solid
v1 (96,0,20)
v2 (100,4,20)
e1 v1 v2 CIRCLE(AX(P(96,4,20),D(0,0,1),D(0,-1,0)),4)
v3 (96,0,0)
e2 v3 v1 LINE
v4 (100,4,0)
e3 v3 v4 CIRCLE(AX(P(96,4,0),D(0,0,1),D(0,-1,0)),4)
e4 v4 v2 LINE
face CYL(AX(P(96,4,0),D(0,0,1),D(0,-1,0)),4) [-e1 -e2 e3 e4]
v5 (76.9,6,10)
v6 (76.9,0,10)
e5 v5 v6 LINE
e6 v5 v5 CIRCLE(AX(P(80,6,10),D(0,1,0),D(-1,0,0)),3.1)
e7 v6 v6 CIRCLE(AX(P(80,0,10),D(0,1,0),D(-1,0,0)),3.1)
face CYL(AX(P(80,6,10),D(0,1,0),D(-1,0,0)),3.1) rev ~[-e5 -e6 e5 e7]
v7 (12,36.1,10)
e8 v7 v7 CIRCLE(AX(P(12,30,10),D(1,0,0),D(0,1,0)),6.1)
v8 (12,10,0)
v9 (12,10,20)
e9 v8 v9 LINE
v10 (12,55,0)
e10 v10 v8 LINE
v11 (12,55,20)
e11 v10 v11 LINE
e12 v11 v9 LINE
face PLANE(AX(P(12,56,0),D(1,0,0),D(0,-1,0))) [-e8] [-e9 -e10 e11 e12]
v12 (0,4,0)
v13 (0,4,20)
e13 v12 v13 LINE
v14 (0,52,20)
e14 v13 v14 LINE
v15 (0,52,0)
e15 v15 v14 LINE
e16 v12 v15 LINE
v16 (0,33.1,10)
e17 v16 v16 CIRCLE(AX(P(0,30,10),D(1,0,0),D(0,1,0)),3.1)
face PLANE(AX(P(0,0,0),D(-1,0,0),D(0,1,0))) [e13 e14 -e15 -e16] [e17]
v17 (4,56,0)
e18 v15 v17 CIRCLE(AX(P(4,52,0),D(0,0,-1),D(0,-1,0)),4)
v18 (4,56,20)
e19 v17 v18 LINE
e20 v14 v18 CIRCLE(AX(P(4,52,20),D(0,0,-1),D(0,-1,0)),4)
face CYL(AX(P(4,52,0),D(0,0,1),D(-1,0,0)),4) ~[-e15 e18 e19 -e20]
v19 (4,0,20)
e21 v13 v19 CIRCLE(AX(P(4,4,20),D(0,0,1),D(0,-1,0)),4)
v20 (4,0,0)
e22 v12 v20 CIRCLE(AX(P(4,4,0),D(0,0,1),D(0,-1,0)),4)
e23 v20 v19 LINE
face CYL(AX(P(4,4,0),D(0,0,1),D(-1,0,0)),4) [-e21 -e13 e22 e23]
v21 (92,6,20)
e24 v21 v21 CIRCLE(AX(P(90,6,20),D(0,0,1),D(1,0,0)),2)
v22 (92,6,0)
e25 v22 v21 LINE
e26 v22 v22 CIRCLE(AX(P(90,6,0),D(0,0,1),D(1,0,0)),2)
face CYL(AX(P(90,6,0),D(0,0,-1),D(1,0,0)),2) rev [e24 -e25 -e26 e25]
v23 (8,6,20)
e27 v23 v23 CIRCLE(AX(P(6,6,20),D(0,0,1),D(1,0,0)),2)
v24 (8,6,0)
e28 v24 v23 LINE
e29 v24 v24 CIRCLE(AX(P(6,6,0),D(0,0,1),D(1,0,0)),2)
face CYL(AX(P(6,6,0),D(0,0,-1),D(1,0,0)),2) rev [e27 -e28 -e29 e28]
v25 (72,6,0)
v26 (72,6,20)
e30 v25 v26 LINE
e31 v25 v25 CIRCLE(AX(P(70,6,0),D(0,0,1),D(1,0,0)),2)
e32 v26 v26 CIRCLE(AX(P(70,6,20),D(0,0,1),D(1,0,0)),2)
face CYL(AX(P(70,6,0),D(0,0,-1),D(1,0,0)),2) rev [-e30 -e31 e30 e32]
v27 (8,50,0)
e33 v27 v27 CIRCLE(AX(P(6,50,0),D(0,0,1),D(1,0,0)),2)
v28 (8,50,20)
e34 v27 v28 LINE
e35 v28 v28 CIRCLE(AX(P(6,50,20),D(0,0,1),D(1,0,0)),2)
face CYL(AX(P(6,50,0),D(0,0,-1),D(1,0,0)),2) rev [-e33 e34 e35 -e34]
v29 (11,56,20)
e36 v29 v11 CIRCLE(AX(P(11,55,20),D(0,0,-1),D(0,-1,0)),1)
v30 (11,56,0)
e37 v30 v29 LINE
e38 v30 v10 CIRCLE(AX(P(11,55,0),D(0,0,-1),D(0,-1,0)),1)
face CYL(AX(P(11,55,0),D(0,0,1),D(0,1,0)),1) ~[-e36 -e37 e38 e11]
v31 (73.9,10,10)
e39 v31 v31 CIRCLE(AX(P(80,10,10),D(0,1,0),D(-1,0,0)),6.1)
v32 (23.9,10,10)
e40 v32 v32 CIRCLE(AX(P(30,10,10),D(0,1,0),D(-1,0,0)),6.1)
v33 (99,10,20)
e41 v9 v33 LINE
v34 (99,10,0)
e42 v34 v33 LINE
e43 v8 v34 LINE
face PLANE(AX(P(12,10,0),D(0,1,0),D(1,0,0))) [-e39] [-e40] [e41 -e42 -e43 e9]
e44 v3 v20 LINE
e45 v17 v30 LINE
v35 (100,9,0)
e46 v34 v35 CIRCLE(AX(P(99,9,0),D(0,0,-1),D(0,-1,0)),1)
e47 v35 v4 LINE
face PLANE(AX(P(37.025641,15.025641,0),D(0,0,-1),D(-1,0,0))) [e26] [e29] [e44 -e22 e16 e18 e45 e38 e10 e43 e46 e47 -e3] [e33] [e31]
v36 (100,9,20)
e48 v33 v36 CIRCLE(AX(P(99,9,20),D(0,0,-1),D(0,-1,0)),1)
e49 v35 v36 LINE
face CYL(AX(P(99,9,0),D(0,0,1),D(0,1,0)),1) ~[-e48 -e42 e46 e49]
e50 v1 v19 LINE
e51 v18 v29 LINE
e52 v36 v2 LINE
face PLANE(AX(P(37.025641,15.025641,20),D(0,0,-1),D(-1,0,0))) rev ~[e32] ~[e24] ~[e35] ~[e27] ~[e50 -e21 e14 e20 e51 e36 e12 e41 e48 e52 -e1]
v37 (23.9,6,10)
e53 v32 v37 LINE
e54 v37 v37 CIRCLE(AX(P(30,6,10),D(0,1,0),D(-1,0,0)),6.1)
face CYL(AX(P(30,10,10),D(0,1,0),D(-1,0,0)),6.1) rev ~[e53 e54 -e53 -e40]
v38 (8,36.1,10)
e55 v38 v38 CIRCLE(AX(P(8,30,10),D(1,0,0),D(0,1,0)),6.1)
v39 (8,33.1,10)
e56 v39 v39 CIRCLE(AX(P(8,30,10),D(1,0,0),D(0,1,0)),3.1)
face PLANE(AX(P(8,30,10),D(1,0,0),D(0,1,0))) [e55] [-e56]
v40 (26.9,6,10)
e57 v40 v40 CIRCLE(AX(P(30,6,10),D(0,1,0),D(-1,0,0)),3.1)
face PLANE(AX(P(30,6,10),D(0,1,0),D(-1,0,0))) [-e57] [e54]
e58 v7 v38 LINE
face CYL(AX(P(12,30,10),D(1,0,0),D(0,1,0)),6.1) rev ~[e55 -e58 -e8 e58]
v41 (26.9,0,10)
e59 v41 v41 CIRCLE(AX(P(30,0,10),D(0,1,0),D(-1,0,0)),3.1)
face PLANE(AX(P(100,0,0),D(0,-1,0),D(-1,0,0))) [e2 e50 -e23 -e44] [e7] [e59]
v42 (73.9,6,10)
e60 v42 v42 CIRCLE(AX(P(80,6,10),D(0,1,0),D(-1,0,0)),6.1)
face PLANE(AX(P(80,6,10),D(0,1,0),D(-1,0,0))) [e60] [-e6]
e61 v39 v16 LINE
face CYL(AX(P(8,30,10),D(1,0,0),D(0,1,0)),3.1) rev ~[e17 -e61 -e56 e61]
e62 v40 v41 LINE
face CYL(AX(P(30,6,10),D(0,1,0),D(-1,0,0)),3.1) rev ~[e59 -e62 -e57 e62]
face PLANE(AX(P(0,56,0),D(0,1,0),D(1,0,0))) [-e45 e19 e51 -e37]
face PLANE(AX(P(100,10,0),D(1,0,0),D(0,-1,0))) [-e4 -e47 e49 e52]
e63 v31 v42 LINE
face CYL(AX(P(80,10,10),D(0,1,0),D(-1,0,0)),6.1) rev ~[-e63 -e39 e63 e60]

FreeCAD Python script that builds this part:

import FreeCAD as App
import Part
import Sketcher

V = App.Vector


def edges_at(feature, points):
    """Names of the edges that pass closest to the given points."""
    edges = feature.Shape.Edges
    near = lambda p: min(range(len(edges)), key=lambda i: edges[i].distToShape(Part.Vertex(*p))[0])
    return sorted({f"Edge{near(p) + 1}" for p in points})


def add_polygon(sketch, points):
    """Adds a closed chain of lines whose ends are joined by coincident constraints."""
    first, n = sketch.GeometryCount, len(points)
    for a, b in zip(points, points[1:] + points[:1]):
        sketch.addGeometry(Part.LineSegment(App.Vector(*a, 0), App.Vector(*b, 0)), False)
    for i in range(n):
        sketch.addConstraint(Sketcher.Constraint("Coincident", first + i, 2, first + (i + 1) % n, 1))

doc = App.newDocument("Part")
body = doc.addObject("PartDesign::Body", "Body")

# Sketch on XY plane
sketch1 = body.newObject("Sketcher::SketchObject", "Sketch")
sketch1.AttachmentSupport = (doc.getObject("XY_Plane"), [""])
sketch1.MapMode = "FlatFace"
add_polygon(sketch1, [(12, 56), (0, 56), (0, 0), (100, 0), (100, 10), (12, 10)])  # lines 0-5
sketch1.addGeometry(Part.Circle(V(90, 6, 0), V(0, 0, 1), 2), False)  # 6
sketch1.addGeometry(Part.Circle(V(70, 6, 0), V(0, 0, 1), 2), False)  # 7
sketch1.addGeometry(Part.Circle(V(6, 6, 0), V(0, 0, 1), 2), False)  # 8
sketch1.addGeometry(Part.Circle(V(6, 50, 0), V(0, 0, 1), 2), False)  # 9
sketch1.addConstraint(Sketcher.Constraint("Horizontal", 0))
sketch1.addConstraint(Sketcher.Constraint("Vertical", 1))
sketch1.addConstraint(Sketcher.Constraint("Horizontal", 2))
sketch1.addConstraint(Sketcher.Constraint("Vertical", 3))
sketch1.addConstraint(Sketcher.Constraint("Horizontal", 4))
sketch1.addConstraint(Sketcher.Constraint("Vertical", 5))
sketch1.addConstraint(Sketcher.Constraint("Coincident", 1, 2, -1, 1))
sketch1.addConstraint(Sketcher.Constraint("Equal", 6, 7))
sketch1.addConstraint(Sketcher.Constraint("Equal", 7, 8))
sketch1.addConstraint(Sketcher.Constraint("Equal", 8, 9))
sketch1.addConstraint(Sketcher.Constraint("Horizontal", 6, 3, 7, 3))
sketch1.addConstraint(Sketcher.Constraint("Horizontal", 7, 3, 8, 3))
sketch1.addConstraint(Sketcher.Constraint("Vertical", 8, 3, 9, 3))
sketch1.addConstraint(Sketcher.Constraint("Diameter", 6, 4.0))
sketch1.addConstraint(Sketcher.Constraint("DistanceX", 0, 2, 0, 1, 12.0))
sketch1.addConstraint(Sketcher.Constraint("DistanceX", 2, 1, 2, 2, 100.0))
sketch1.addConstraint(Sketcher.Constraint("DistanceY", 1, 2, 1, 1, 56.0))
sketch1.addConstraint(Sketcher.Constraint("DistanceY", 3, 1, 3, 2, 10.0))
sketch1.addConstraint(Sketcher.Constraint("DistanceX", -1, 1, 6, 3, 90.0))
sketch1.addConstraint(Sketcher.Constraint("DistanceY", -1, 1, 6, 3, 6.0))
sketch1.addConstraint(Sketcher.Constraint("DistanceX", -1, 1, 7, 3, 70.0))
sketch1.addConstraint(Sketcher.Constraint("DistanceX", -1, 1, 8, 3, 6.0))
sketch1.addConstraint(Sketcher.Constraint("DistanceY", -1, 1, 9, 3, 50.0))
pad1 = body.newObject("PartDesign::Pad", "Pad")
pad1.Profile = sketch1
pad1.Length = 20

# Sketch on XZ plane
sketch2 = body.newObject("Sketcher::SketchObject", "Sketch001")
sketch2.AttachmentSupport = (doc.getObject("XZ_Plane"), [""])
sketch2.MapMode = "FlatFace"
sketch2.AttachmentOffset = App.Placement(V(0, 0, -10), App.Rotation())
sketch2.addGeometry(Part.Circle(V(30, 10, 0), V(0, 0, 1), 6), False)
sketch2.addGeometry(Part.Circle(V(80, 10, 0), V(0, 0, 1), 6), False)
sketch2.addConstraint(Sketcher.Constraint("Equal", 0, 1))
sketch2.addConstraint(Sketcher.Constraint("Horizontal", 0, 3, 1, 3))
sketch2.addConstraint(Sketcher.Constraint("Diameter", 0, 12.2))
sketch2.addConstraint(Sketcher.Constraint("DistanceX", -1, 1, 0, 3, 30.0))
sketch2.addConstraint(Sketcher.Constraint("DistanceY", -1, 1, 0, 3, 10.0))
sketch2.addConstraint(Sketcher.Constraint("DistanceX", -1, 1, 1, 3, 80.0))
pocket1 = body.newObject("PartDesign::Pocket", "Pocket")
pocket1.Profile = sketch2
pocket1.Length = 4
pocket1.Reversed = True

# Sketch on YZ plane
sketch3 = body.newObject("Sketcher::SketchObject", "Sketch002")
sketch3.AttachmentSupport = (doc.getObject("YZ_Plane"), [""])
sketch3.MapMode = "FlatFace"
sketch3.AttachmentOffset = App.Placement(V(0, 0, 12), App.Rotation())
sketch3.addGeometry(Part.Circle(V(30, 10, 0), V(0, 0, 1), 6), False)
sketch3.addConstraint(Sketcher.Constraint("Diameter", 0, 12.2))
sketch3.addConstraint(Sketcher.Constraint("DistanceX", -1, 1, 0, 3, 30.0))
sketch3.addConstraint(Sketcher.Constraint("DistanceY", -1, 1, 0, 3, 10.0))
pocket2 = body.newObject("PartDesign::Pocket", "Pocket001")
pocket2.Profile = sketch3
pocket2.Length = 4

# Sketch on YZ plane
sketch4 = body.newObject("Sketcher::SketchObject", "Sketch003")
sketch4.AttachmentSupport = (doc.getObject("YZ_Plane"), [""])
sketch4.MapMode = "FlatFace"
sketch4.AttachmentOffset = App.Placement(V(0, 0, 8), App.Rotation())
sketch4.addGeometry(Part.Circle(V(30, 10, 0), V(0, 0, 1), 3.1), False)
sketch4.addConstraint(Sketcher.Constraint("Diameter", 0, 6.2))
sketch4.addConstraint(Sketcher.Constraint("DistanceX", -1, 1, 0, 3, 30.0))
sketch4.addConstraint(Sketcher.Constraint("DistanceY", -1, 1, 0, 3, 10.0))
pocket3 = body.newObject("PartDesign::Pocket", "Pocket002")
pocket3.Profile = sketch4
pocket3.Length = 10

# Sketch on XZ plane
sketch5 = body.newObject("Sketcher::SketchObject", "Sketch004")
sketch5.AttachmentSupport = (doc.getObject("XZ_Plane"), [""])
sketch5.MapMode = "FlatFace"
sketch5.AttachmentOffset = App.Placement(V(0, 0, -6), App.Rotation())
sketch5.addGeometry(Part.Circle(V(80, 10, 0), V(0, 0, 1), 3.1), False)
sketch5.addGeometry(Part.Circle(V(30, 10, 0), V(0, 0, 1), 3.1), False)
sketch5.addConstraint(Sketcher.Constraint("Equal", 0, 1))
sketch5.addConstraint(Sketcher.Constraint("Horizontal", 0, 3, 1, 3))
sketch5.addConstraint(Sketcher.Constraint("Diameter", 0, 6.2))
sketch5.addConstraint(Sketcher.Constraint("DistanceX", -1, 1, 0, 3, 80.0))
sketch5.addConstraint(Sketcher.Constraint("DistanceY", -1, 1, 0, 3, 10.0))
sketch5.addConstraint(Sketcher.Constraint("DistanceX", -1, 1, 1, 3, 30.0))
pocket4 = body.newObject("PartDesign::Pocket", "Pocket003")
pocket4.Profile = sketch5
pocket4.Length = 10
pocket4.Reversed = True
doc.recompute()

fillet = body.newObject("PartDesign::Fillet", "Fillet")
fillet.Base = (pocket4, edges_at(pocket4, [(0, 0, 10)]))
fillet.Radius = 4
doc.recompute()

fillet2 = body.newObject("PartDesign::Fillet", "Fillet001")
fillet2.Base = (fillet, edges_at(fillet, [(100, 0, 10)]))
fillet2.Radius = 4
doc.recompute()

fillet3 = body.newObject("PartDesign::Fillet", "Fillet002")
fillet3.Base = (fillet2, edges_at(fillet2, [(0, 56, 10)]))
fillet3.Radius = 4
doc.recompute()

fillet4 = body.newObject("PartDesign::Fillet", "Fillet003")
fillet4.Base = (fillet3, edges_at(fillet3, [(12, 56, 10)]))
fillet4.Radius = 1
doc.recompute()

fillet5 = body.newObject("PartDesign::Fillet", "Fillet004")
fillet5.Base = (fillet4, edges_at(fillet4, [(100, 10, 10)]))
fillet5.Radius = 1

doc.recompute()
